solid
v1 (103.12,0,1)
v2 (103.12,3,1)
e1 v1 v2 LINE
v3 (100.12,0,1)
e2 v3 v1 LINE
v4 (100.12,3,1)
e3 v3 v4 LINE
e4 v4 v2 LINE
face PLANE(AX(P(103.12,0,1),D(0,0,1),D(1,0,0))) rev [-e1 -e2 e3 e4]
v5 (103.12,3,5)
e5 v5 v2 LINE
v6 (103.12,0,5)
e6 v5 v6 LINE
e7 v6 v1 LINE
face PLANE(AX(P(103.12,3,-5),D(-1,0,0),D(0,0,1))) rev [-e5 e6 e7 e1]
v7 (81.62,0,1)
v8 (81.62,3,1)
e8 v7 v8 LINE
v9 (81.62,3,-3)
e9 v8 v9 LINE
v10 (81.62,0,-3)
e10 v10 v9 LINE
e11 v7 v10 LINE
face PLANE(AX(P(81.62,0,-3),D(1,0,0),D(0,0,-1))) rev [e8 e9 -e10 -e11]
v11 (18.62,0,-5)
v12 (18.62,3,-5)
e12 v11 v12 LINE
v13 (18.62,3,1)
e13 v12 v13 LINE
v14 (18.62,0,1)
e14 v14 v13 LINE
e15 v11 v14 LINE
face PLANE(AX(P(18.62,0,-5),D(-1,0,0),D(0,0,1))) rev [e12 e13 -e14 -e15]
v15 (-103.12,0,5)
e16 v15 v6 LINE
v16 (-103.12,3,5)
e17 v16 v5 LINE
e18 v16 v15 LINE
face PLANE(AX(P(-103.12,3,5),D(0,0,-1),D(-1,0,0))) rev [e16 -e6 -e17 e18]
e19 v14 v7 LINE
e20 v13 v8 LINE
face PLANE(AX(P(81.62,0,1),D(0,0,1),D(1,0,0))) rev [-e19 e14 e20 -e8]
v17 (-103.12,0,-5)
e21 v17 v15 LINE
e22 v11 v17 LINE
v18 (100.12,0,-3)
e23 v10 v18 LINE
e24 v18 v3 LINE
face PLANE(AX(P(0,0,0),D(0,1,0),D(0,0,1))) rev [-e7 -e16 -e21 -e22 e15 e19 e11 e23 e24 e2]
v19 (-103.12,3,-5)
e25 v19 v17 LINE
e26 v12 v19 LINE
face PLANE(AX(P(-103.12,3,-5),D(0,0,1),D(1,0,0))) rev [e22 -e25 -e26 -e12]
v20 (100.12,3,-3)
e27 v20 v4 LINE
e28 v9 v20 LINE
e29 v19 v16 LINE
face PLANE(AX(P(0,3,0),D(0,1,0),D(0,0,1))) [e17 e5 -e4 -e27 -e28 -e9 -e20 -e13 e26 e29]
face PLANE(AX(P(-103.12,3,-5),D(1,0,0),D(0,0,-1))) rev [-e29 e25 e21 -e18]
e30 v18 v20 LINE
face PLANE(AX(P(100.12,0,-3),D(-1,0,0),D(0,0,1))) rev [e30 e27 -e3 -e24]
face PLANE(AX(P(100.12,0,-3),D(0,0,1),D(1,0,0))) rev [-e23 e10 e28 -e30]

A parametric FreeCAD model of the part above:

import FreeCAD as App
import Part
import Sketcher

doc = App.newDocument("Part")
params = doc.addObject("Spreadsheet::Sheet", "Params")
for row, (alias, value) in enumerate([
    ("sketch1_height", "10 mm"),
    ("sketch1_width", "206.24 mm"),
    ("pad1_length", "3 mm"),
    ("sketch2_width", "63 mm"),
    ("sketch2_width2", "3 mm"),
    ("sketch2_height", "6 mm"),
    ("sketch2_height2", "4 mm"),
    ("sketch2_width3", "84.5 mm"),
], start=1):
    params.set(f"A{row}", alias)
    params.set(f"B{row}", "=" + value)
    params.setAlias(f"B{row}", alias)

body = doc.addObject("PartDesign::Body", "Body")

sketch1 = body.newObject("Sketcher::SketchObject", "Sketch")
sketch1.AttachmentSupport = (doc.getObject("XZ_Plane"), [""])
sketch1.MapMode = "FlatFace"
sketch1.addGeometry([
    Part.LineSegment(App.Vector(-103, -5, 0), App.Vector(-103, 5, 0)),
    Part.LineSegment(App.Vector(-103, 5, 0), App.Vector(103, 5, 0)),
    Part.LineSegment(App.Vector(103, 5, 0), App.Vector(103, -5, 0)),
    Part.LineSegment(App.Vector(103, -5, 0), App.Vector(-103, -5, 0)),
], False)
sketch1.addConstraint([
    Sketcher.Constraint("Coincident", 0, 2, 1, 1),
    Sketcher.Constraint("Coincident", 1, 2, 2, 1),
    Sketcher.Constraint("Coincident", 2, 2, 3, 1),
    Sketcher.Constraint("Coincident", 3, 2, 0, 1),
    Sketcher.Constraint("Vertical", 0),
    Sketcher.Constraint("Horizontal", 1),
    Sketcher.Constraint("Vertical", 2),
    Sketcher.Constraint("Horizontal", 3),
    Sketcher.Constraint("Symmetric", 0, 2, 2, 2, -1, 1),
    Sketcher.Constraint("DistanceY", 0, 1, 0, 2, 10.0),
    Sketcher.Constraint("DistanceX", 1, 1, 1, 2, 206.24),
])
sketch1.setExpression("Constraints[9]", "Params.sketch1_height")
sketch1.setExpression("Constraints[10]", "Params.sketch1_width")
pad1 = body.newObject("PartDesign::Pad", "Pad")
pad1.Profile = sketch1
pad1.setExpression("Length", "Params.pad1_length")
pad1.Reversed = True

sketch2 = body.newObject("Sketcher::SketchObject", "Sketch001")
sketch2.AttachmentSupport = (doc.getObject("XZ_Plane"), [""])
sketch2.MapMode = "FlatFace"
sketch2.AttachmentOffset = App.Placement(App.Vector(0, 0, -3), App.Rotation())
sketch2.addGeometry([
    Part.LineSegment(App.Vector(103.1, -5, 0), App.Vector(18.6, -5, 0)),
    Part.LineSegment(App.Vector(18.6, -5, 0), App.Vector(18.6, 1, 0)),
    Part.LineSegment(App.Vector(18.6, 1, 0), App.Vector(81.6, 1, 0)),
    Part.LineSegment(App.Vector(81.6, 1, 0), App.Vector(81.6, -3, 0)),
    Part.LineSegment(App.Vector(81.6, -3, 0), App.Vector(100.1, -3, 0)),
    Part.LineSegment(App.Vector(100.1, -3, 0), App.Vector(100.1, 1, 0)),
    Part.LineSegment(App.Vector(100.1, 1, 0), App.Vector(103.1, 1, 0)),
    Part.LineSegment(App.Vector(103.1, 1, 0), App.Vector(103.1, -5, 0)),
], False)
sketch2.addConstraint([
    Sketcher.Constraint("Coincident", 0, 2, 1, 1),
    Sketcher.Constraint("Coincident", 1, 2, 2, 1),
    Sketcher.Constraint("Coincident", 2, 2, 3, 1),
    Sketcher.Constraint("Coincident", 3, 2, 4, 1),
    Sketcher.Constraint("Coincident", 4, 2, 5, 1),
    Sketcher.Constraint("Coincident", 5, 2, 6, 1),
    Sketcher.Constraint("Coincident", 6, 2, 7, 1),
    Sketcher.Constraint("Coincident", 7, 2, 0, 1),
    Sketcher.Constraint("Horizontal", 0),
    Sketcher.Constraint("Vertical", 1),
    Sketcher.Constraint("Horizontal", 2),
    Sketcher.Constraint("Vertical", 3),
    Sketcher.Constraint("Horizontal", 4),
    Sketcher.Constraint("Vertical", 5),
    Sketcher.Constraint("Horizontal", 6),
    Sketcher.Constraint("Vertical", 7),
    Sketcher.Constraint("Horizontal", 2, 2, 5, 2),
    Sketcher.Constraint("DistanceX", 2, 1, 2, 2, 63.0),
    Sketcher.Constraint("DistanceX", 6, 1, 6, 2, 3.0),
    Sketcher.Constraint("DistanceY", 1, 1, 1, 2, 6.0),
    Sketcher.Constraint("DistanceY", 3, 2, 3, 1, 4.0),
    Sketcher.Constraint("DistanceX", 0, 2, 0, 1, 84.5),
    Sketcher.Constraint("DistanceY", 0, 2, -1, 1, 5.0),
    Sketcher.Constraint("DistanceX", -1, 1, 0, 2, 18.62),
])
sketch2.setExpression("Constraints[17]", "Params.sketch2_width")
sketch2.setExpression("Constraints[18]", "Params.sketch2_width2")
sketch2.setExpression("Constraints[19]", "Params.sketch2_height")
sketch2.setExpression("Constraints[20]", "Params.sketch2_height2")
sketch2.setExpression("Constraints[21]", "Params.sketch2_width3")
pocket1 = body.newObject("PartDesign::Pocket", "Pocket")
pocket1.Profile = sketch2
pocket1.Type = "ThroughAll"
pocket1.Reversed = True

doc.recompute()
